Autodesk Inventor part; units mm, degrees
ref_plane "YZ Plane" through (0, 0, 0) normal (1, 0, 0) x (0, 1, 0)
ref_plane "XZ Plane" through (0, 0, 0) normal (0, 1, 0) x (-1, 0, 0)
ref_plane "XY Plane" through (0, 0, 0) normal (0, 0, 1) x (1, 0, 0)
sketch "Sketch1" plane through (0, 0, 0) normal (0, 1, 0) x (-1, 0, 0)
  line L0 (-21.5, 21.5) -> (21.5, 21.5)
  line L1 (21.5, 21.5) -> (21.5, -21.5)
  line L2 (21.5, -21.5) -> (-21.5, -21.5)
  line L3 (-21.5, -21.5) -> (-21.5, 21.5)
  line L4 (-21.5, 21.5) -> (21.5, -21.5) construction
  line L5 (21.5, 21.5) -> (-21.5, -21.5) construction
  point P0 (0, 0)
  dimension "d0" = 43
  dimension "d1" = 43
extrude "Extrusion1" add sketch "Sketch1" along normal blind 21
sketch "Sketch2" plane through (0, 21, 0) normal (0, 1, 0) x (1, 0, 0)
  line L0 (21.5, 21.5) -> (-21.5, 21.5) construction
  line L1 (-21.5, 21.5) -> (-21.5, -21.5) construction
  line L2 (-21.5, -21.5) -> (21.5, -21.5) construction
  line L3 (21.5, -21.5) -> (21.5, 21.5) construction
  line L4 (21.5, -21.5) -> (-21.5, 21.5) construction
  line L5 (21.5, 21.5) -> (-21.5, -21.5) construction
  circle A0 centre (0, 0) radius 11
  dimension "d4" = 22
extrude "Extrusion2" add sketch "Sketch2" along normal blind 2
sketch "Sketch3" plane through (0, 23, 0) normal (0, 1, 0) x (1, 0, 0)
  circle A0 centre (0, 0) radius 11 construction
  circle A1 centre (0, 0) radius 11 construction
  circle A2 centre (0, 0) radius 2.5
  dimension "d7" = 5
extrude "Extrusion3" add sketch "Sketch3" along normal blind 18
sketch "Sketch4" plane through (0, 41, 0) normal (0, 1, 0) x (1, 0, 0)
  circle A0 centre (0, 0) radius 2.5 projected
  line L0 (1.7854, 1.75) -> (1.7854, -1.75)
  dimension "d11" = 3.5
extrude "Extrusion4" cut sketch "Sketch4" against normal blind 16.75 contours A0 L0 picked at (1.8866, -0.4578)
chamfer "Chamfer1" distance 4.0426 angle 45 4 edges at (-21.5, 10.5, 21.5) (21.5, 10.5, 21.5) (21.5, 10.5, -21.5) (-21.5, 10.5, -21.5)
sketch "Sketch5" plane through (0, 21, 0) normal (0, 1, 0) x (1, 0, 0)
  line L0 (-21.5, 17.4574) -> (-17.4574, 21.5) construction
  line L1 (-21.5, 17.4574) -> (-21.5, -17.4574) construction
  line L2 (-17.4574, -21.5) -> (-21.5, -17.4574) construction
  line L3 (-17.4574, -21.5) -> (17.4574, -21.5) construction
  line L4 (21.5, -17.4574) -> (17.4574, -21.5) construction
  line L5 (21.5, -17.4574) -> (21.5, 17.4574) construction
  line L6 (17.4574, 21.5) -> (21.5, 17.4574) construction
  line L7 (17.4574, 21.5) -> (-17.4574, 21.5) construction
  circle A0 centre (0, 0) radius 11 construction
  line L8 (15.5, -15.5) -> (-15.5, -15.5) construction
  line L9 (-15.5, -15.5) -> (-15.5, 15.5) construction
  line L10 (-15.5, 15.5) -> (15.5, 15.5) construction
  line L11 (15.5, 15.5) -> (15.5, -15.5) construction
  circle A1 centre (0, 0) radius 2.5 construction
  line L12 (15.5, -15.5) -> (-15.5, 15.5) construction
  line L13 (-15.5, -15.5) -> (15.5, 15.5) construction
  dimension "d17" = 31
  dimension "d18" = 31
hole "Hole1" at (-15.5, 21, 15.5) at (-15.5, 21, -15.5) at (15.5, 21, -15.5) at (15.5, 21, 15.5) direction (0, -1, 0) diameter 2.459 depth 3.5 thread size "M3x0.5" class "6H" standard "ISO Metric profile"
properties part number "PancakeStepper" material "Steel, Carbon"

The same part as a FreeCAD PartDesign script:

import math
import FreeCAD as App
import Part
import Sketcher
from FreeCAD import Vector
Q = App.Units.Quantity


def edges_at(feature, points):
    """Names of the edges that pass closest to the given points."""
    edges = feature.Shape.Edges
    near = lambda p: min(range(len(edges)), key=lambda i: edges[i].distToShape(Part.Vertex(*p))[0])
    return sorted({f"Edge{near(p) + 1}" for p in points})


def add_polygon(sketch, points):
    """Adds a closed chain of lines whose ends are joined by coincident constraints."""
    first, n = sketch.GeometryCount, len(points)
    for a, b in zip(points, points[1:] + points[:1]):
        sketch.addGeometry(Part.LineSegment(App.Vector(*a, 0), App.Vector(*b, 0)), False)
    for i in range(n):
        sketch.addConstraint(Sketcher.Constraint("Coincident", first + i, 2, first + (i + 1) % n, 1))

doc = App.newDocument("Part")
body = doc.addObject("PartDesign::Body", "Body")

# Sketch on XZ plane
sketch1 = body.newObject("Sketcher::SketchObject", "Sketch")
sketch1.AttachmentSupport = (doc.getObject("XZ_Plane"), [""])
sketch1.MapMode = "FlatFace"
add_polygon(sketch1, [(-21.5, 21.5), (21.5, 21.5), (21.5, -21.5), (-21.5, -21.5)])  # lines 0-3
sketch1.addConstraint([
    Sketcher.Constraint("Horizontal", 0),
    Sketcher.Constraint("Vertical", 1),
    Sketcher.Constraint("Horizontal", 2),
    Sketcher.Constraint("Vertical", 3),
    Sketcher.Constraint("Symmetric", 0, 2, 2, 2, -1, 1),
    Sketcher.Constraint("Equal", 2, 1),
    Sketcher.Constraint("DistanceX", 0, 1, 0, 2, Q("43 mm")),
])
pad1 = body.newObject("PartDesign::Pad", "Pad")
pad1.Profile = sketch1
pad1.Length = 21
pad1.Reversed = True

# Sketch on XZ plane
sketch2 = body.newObject("Sketcher::SketchObject", "Sketch001")
sketch2.AttachmentSupport = (doc.getObject("XZ_Plane"), [""])
sketch2.MapMode = "FlatFace"
sketch2.AttachmentOffset = App.Placement(Vector(0, 0, -21), App.Rotation())
sketch2.addGeometry(Part.Circle(Vector(0, 0, 0), Vector(0, 0, 1), 11), False)
sketch2.addConstraint([
    Sketcher.Constraint("Coincident", 0, 3, -1, 1),
    Sketcher.Constraint("Diameter", 0, Q("22 mm")),
])
pad2 = body.newObject("PartDesign::Pad", "Pad001")
pad2.Profile = sketch2
pad2.Length = 2
pad2.Reversed = True

# Sketch on XZ plane
sketch3 = body.newObject("Sketcher::SketchObject", "Sketch002")
sketch3.AttachmentSupport = (doc.getObject("XZ_Plane"), [""])
sketch3.MapMode = "FlatFace"
sketch3.AttachmentOffset = App.Placement(Vector(0, 0, -23), App.Rotation())
sketch3.addGeometry(Part.Circle(Vector(0, 0, 0), Vector(0, 0, 1), 2.5), False)
sketch3.addConstraint([
    Sketcher.Constraint("Coincident", 0, 3, -1, 1),
    Sketcher.Constraint("Diameter", 0, Q("5 mm")),
])
pad3 = body.newObject("PartDesign::Pad", "Pad002")
pad3.Profile = sketch3
pad3.Length = 18
pad3.Reversed = True

# Sketch on XZ plane
sketch4 = body.newObject("Sketcher::SketchObject", "Sketch003")
sketch4.AttachmentSupport = (doc.getObject("XZ_Plane"), [""])
sketch4.MapMode = "FlatFace"
sketch4.AttachmentOffset = App.Placement(Vector(0, 0, -41), App.Rotation())
sketch4.addGeometry([
    Part.ArcOfCircle(Part.Circle(Vector(0, 0, 0), Vector(0, 0, 1), 2.5), math.radians(-44.426316), math.radians(44.426316)),
    Part.LineSegment(Vector(1.7854, 1.75, 0), Vector(1.7854, -1.75, 0)),
], False)
sketch4.addConstraint([
    Sketcher.Constraint("Coincident", 0, 1, 1, 2),
    Sketcher.Constraint("Coincident", 1, 1, 0, 2),
    Sketcher.Constraint("Vertical", 1),
    Sketcher.Constraint("Coincident", 0, 3, -1, 1),
    Sketcher.Constraint("DistanceY", 1, 2, 1, 1, Q("3.5 mm")),
    Sketcher.Constraint("Radius", 0, Q("2.5 mm")),
])
pocket1 = body.newObject("PartDesign::Pocket", "Pocket")
pocket1.Profile = sketch4
pocket1.Length = 16.75
pocket1.Reversed = True
doc.recompute()

chamfer = body.newObject("PartDesign::Chamfer", "Chamfer")
chamfer.Base = (pocket1, edges_at(pocket1, [
    (-21.5, 10.5, 21.5),
    (21.5, 10.5, 21.5),
    (21.5, 10.5, -21.5),
    (-21.5, 10.5, -21.5),
]))
chamfer.Size = 4.0426

# Sketch on XZ plane
sketch5 = body.newObject("Sketcher::SketchObject", "Sketch004")
sketch5.AttachmentSupport = (doc.getObject("XZ_Plane"), [""])
sketch5.MapMode = "FlatFace"
sketch5.AttachmentOffset = App.Placement(Vector(0, 0, -21), App.Rotation())
sketch5.addGeometry([
    Part.Circle(Vector(-15.5, 15.5, 0), Vector(0, 0, 1), 1.2295),
    Part.Circle(Vector(-15.5, -15.5, 0), Vector(0, 0, 1), 1.2295),
    Part.Circle(Vector(15.5, -15.5, 0), Vector(0, 0, 1), 1.2295),
    Part.Circle(Vector(15.5, 15.5, 0), Vector(0, 0, 1), 1.2295),
], False)
sketch5.addConstraint([
    Sketcher.Constraint("Equal", 0, 1),
    Sketcher.Constraint("Equal", 1, 2),
    Sketcher.Constraint("Equal", 2, 3),
    Sketcher.Constraint("Symmetric", 0, 3, 2, 3, -1, 1),
    Sketcher.Constraint("Symmetric", 1, 3, 3, 3, -1, 1),
    Sketcher.Constraint("Symmetric", 1, 3, 2, 3, -2),
    Sketcher.Constraint("Diameter", 0, Q("2.459 mm")),
    Sketcher.Constraint("DistanceY", 1, 3, 0, 3, Q("31 mm")),
    Sketcher.Constraint("DistanceX", 1, 3, 2, 3, Q("31 mm")),
])
doc.recompute()
hole = body.newObject("PartDesign::Hole", "Hole")
hole.Profile = sketch5
hole.ThreadType = "None"
hole.Diameter = 2.459
hole.DepthType = "Dimension"
hole.Depth = 3.5
hole.DrillPoint = "Flat"
hole.Reversed = True

doc.recompute()
